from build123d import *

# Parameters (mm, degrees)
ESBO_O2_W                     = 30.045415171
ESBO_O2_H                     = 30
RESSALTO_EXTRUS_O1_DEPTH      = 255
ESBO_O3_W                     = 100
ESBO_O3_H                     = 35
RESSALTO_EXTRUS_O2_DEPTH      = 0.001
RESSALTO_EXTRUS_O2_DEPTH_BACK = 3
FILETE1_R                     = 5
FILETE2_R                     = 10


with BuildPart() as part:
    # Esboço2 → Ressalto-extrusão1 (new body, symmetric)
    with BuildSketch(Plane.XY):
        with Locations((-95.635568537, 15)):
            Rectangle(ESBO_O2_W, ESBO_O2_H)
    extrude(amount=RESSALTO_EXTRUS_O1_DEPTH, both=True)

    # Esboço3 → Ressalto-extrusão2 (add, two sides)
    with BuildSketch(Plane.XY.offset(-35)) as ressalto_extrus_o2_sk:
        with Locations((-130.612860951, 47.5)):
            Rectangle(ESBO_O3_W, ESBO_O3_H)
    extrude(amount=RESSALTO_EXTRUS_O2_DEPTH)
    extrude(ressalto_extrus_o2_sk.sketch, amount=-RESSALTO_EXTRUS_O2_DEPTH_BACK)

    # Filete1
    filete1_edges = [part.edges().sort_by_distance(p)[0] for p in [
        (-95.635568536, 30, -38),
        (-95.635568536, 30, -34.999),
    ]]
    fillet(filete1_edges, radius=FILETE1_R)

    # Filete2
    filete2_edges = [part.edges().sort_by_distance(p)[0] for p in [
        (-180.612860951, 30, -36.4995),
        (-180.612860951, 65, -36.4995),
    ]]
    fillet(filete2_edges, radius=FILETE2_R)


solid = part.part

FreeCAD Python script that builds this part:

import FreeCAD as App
import Part
import Sketcher

V = App.Vector


def edges_at(feature, points):
    """Names of the edges that pass closest to the given points."""
    edges = feature.Shape.Edges
    near = lambda p: min(range(len(edges)), key=lambda i: edges[i].distToShape(Part.Vertex(*p))[0])
    return sorted({f"Edge{near(p) + 1}" for p in points})


def add_polygon(sketch, points):
    """Adds a closed chain of lines whose ends are joined by coincident constraints."""
    first, n = sketch.GeometryCount, len(points)
    for a, b in zip(points, points[1:] + points[:1]):
        sketch.addGeometry(Part.LineSegment(App.Vector(*a, 0), App.Vector(*b, 0)), False)
    for i in range(n):
        sketch.addConstraint(Sketcher.Constraint("Coincident", first + i, 2, first + (i + 1) % n, 1))

doc = App.newDocument("Part")
params = doc.addObject("Spreadsheet::Sheet", "Params")
for row, (alias, value) in enumerate([
    ("sketch1_height", "30 mm"),
    ("pad1_length", "510 mm"),
    ("sketch2_width", "100 mm"),
    ("sketch2_height", "35 mm"),
    ("pad2_length", "0.001 mm"),
    ("pad2_length2", "3 mm"),
    ("fillet_radius", "5 mm"),
    ("fillet2_radius", "10 mm"),
], start=1):
    params.set(f"A{row}", alias)
    params.set(f"B{row}", "=" + value)
    params.setAlias(f"B{row}", alias)

body = doc.addObject("PartDesign::Body", "Body")

sketch1 = body.newObject("Sketcher::SketchObject", "Sketch")
sketch1.AttachmentSupport = (doc.getObject("XY_Plane"), [""])
sketch1.MapMode = "FlatFace"
add_polygon(sketch1, [(-111, 30), (-111, 0), (-81, 0), (-81, 30)])
sketch1.addConstraint([
    Sketcher.Constraint("Vertical", 0),
    Sketcher.Constraint("Horizontal", 1),
    Sketcher.Constraint("Vertical", 2),
    Sketcher.Constraint("Horizontal", 3),
    Sketcher.Constraint("PointOnObject", 0, 2, -1),
    Sketcher.Constraint("DistanceY", 0, 2, 0, 1, 30.0),
    Sketcher.Constraint("DistanceX", 1, 1, 1, 2, 30.045415),
    Sketcher.Constraint("DistanceX", 1, 2, -1, 1, 80.612861),
])
sketch1.setExpression("Constraints[9]", "Params.sketch1_height")
pad1 = body.newObject("PartDesign::Pad", "Pad")
pad1.Profile = sketch1
pad1.setExpression("Length", "Params.pad1_length")
pad1.Midplane = True

sketch2 = body.newObject("Sketcher::SketchObject", "Sketch001")
sketch2.AttachmentSupport = (doc.getObject("XY_Plane"), [""])
sketch2.MapMode = "FlatFace"
sketch2.AttachmentOffset = App.Placement(V(0, 0, -35), App.Rotation())
add_polygon(sketch2, [(-181, 65), (-181, 30), (-81, 30), (-81, 65)])
sketch2.addConstraint([
    Sketcher.Constraint("Vertical", 0),
    Sketcher.Constraint("Horizontal", 1),
    Sketcher.Constraint("Vertical", 2),
    Sketcher.Constraint("Horizontal", 3),
    Sketcher.Constraint("DistanceX", 1, 1, 1, 2, 100.0),
    Sketcher.Constraint("DistanceY", 0, 2, 0, 1, 35.0),
    Sketcher.Constraint("DistanceY", -1, 1, 0, 2, 30.0),
    Sketcher.Constraint("DistanceX", 0, 2, -1, 1, 180.612861),
])
sketch2.setExpression("Constraints[8]", "Params.sketch2_width")
sketch2.setExpression("Constraints[9]", "Params.sketch2_height")
pad2 = body.newObject("PartDesign::Pad", "Pad001")
pad2.Profile = sketch2
pad2.Type = "TwoLengths"
pad2.setExpression("Length", "Params.pad2_length")
pad2.setExpression("Length2", "Params.pad2_length2")
doc.recompute()

fillet = body.newObject("PartDesign::Fillet", "Fillet")
fillet.Base = (pad2, edges_at(pad2, [(-95.636, 30, -38), (-95.636, 30, -34.999)]))
fillet.setExpression("Radius", "Params.fillet_radius")
doc.recompute()

fillet2 = body.newObject("PartDesign::Fillet", "Fillet001")
fillet2.Base = (fillet, edges_at(fillet, [(-180.613, 30, -36.499), (-180.613, 65, -36.499)]))
fillet2.setExpression("Radius", "Params.fillet2_radius")

doc.recompute()
